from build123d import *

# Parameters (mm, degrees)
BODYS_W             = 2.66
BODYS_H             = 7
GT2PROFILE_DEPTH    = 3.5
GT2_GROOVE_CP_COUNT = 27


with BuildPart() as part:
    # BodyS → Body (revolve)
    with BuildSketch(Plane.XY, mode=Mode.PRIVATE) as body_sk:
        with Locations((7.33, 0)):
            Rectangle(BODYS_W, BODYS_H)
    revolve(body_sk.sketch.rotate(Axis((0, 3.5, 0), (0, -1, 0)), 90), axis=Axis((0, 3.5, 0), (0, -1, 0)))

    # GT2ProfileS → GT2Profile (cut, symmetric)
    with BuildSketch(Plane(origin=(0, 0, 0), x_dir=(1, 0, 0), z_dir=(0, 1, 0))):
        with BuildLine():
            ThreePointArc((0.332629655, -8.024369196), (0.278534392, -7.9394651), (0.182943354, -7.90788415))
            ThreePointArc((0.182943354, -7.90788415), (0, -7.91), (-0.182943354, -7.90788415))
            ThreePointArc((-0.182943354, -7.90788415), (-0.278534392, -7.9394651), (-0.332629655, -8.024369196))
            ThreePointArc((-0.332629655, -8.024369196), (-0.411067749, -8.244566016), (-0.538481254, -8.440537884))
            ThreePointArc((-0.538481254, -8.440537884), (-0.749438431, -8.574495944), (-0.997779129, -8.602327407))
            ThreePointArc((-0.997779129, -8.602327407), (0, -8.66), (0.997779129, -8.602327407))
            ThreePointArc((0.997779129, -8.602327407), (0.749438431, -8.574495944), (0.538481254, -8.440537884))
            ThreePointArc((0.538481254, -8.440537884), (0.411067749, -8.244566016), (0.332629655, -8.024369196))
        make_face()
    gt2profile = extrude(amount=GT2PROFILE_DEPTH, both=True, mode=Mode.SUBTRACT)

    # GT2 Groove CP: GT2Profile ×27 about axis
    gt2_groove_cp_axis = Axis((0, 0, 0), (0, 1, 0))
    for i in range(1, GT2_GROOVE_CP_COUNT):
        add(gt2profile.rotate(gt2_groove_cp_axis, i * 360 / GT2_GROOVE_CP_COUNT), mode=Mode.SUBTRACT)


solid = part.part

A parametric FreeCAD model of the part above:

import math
import FreeCAD as App
import Part
import Sketcher

V = App.Vector
Q = App.Units.Quantity

doc = App.newDocument("Part")
body = doc.addObject("PartDesign::Body", "Body")

sketch1 = doc.addObject("Sketcher::SketchObject", "Sketch")
body.addObject(sketch1)
sketch1.AttachmentSupport = (doc.XY_Plane, [""])
sketch1.MapMode = "FlatFace"
sketch1.addGeometry([
    Part.LineSegment(V(6, 3.5, 0), V(6, -3.5, 0)),
    Part.LineSegment(V(6, -3.5, 0), V(8.66, -3.5, 0)),
    Part.LineSegment(V(8.66, -3.5, 0), V(8.66, 3.5, 0)),
    Part.LineSegment(V(8.66, 3.5, 0), V(6, 3.5, 0)),
], False)
sketch1.addConstraint([
    Sketcher.Constraint("Coincident", 0, 2, 1, 1),
    Sketcher.Constraint("Coincident", 1, 2, 2, 1),
    Sketcher.Constraint("Coincident", 2, 2, 3, 1),
    Sketcher.Constraint("Coincident", 3, 2, 0, 1),
    Sketcher.Constraint("Vertical", 0),
    Sketcher.Constraint("Horizontal", 1),
    Sketcher.Constraint("Vertical", 2),
    Sketcher.Constraint("Horizontal", 3),
    Sketcher.Constraint("DistanceY", 0, 2, 0, 1, Q("7 mm")),
    Sketcher.Constraint("DistanceX", -1, 1, 0, 2, Q("6 mm")),
    Sketcher.Constraint("DistanceX", 1, 1, 1, 2, Q("2.66 mm")),
    Sketcher.Constraint("DistanceY", 0, 2, -1, 1, Q("3.5 mm")),
])
revolution = doc.addObject("PartDesign::Revolution", "Revolution")
body.addObject(revolution)
revolution.Profile = sketch1
revolution.ReferenceAxis = (sketch1, ["V_Axis"])
revolution.Angle = 360

sketch2 = doc.addObject("Sketcher::SketchObject", "Sketch001")
body.addObject(sketch2)
sketch2.AttachmentSupport = (doc.XZ_Plane, [""])
sketch2.MapMode = "FlatFace"
sketch2.addGeometry([
    Part.ArcOfCircle(Part.Circle(V(0.186413, 8.057844, 0), V(0, 0, 1), 0.15), math.radians(-91.325262), math.radians(-12.895028)),
    Part.ArcOfCircle(Part.Circle(V(0, 0, 0), V(0, 0, 1), 7.91), math.radians(88.674739), math.radians(91.325261)),
    Part.ArcOfCircle(Part.Circle(V(-0.186413, 8.057844, 0), V(0, 0, 1), 0.15), math.radians(-167.104972), math.radians(-88.674738)),
    Part.ArcOfCircle(Part.Circle(V(-1.30741, 7.801204, 0), V(0, 0, 1), 1), math.radians(12.895029), math.radians(39.742192)),
    Part.ArcOfCircle(Part.Circle(V(-0.933834, 8.051024, 0), V(0, 0, 1), 0.555), math.radians(44.573825), math.radians(96.616141)),
    Part.ArcOfCircle(Part.Circle(V(0, 0, 0), V(0, 0, 1), 8.66), math.radians(83.383859), math.radians(96.616141)),
    Part.ArcOfCircle(Part.Circle(V(0.933834, 8.051024, 0), V(0, 0, 1), 0.555), math.radians(83.383859), math.radians(135.426175)),
    Part.ArcOfCircle(Part.Circle(V(1.30741, 7.801204, 0), V(0, 0, 1), 1), math.radians(140.257808), math.radians(167.104971)),
], False)
sketch2.addConstraint([
    Sketcher.Constraint("Tangent", 0, 1, 1, 1),
    Sketcher.Constraint("Tangent", 1, 2, 2, 2),
    Sketcher.Constraint("Tangent", 2, 1, 3, 1),
    Sketcher.Constraint("Coincident", 3, 2, 4, 1),
    Sketcher.Constraint("Tangent", 4, 2, 5, 2),
    Sketcher.Constraint("Tangent", 5, 1, 6, 1),
    Sketcher.Constraint("Coincident", 6, 2, 7, 1),
    Sketcher.Constraint("Tangent", 7, 2, 0, 2),
    Sketcher.Constraint("Coincident", 1, 3, -1, 1),
    Sketcher.Constraint("Coincident", 5, 3, -1, 1),
    Sketcher.Constraint("Equal", 0, 2),
    Sketcher.Constraint("Equal", 4, 6),
    Sketcher.Constraint("Equal", 3, 7),
    Sketcher.Constraint("Symmetric", 3, 3, 7, 3, -2),
    Sketcher.Constraint("Horizontal", 4, 3, 6, 3),
    Sketcher.Constraint("Radius", 3, Q("1 mm")),
    Sketcher.Constraint("Radius", 0, Q("0.15 mm")),
    Sketcher.Constraint("Radius", 1, Q("7.91 mm")),
    Sketcher.Constraint("Radius", 5, Q("8.66 mm")),
    Sketcher.Constraint("Radius", 4, Q("0.555 mm")),
    Sketcher.Constraint("DistanceX", 3, 3, -1, 1, Q("1.30741 mm")),
    Sketcher.Constraint("DistanceX", 2, 1, -1, 1, Q("0.33263 mm")),
    Sketcher.Constraint("DistanceX", 3, 2, -1, 1, Q("0.538481 mm")),
])
pocket1 = doc.addObject("PartDesign::Pocket", "Pocket")
body.addObject(pocket1)
pocket1.Profile = sketch2
pocket1.Length = 7
pocket1.Midplane = True
doc.recompute()

polarpattern = doc.addObject("PartDesign::PolarPattern", "PolarPattern")
body.addObject(polarpattern)
polarpattern.Originals = [pocket1]
polarpattern.Axis = (doc.Y_Axis, [""])
polarpattern.Angle = 360
polarpattern.Occurrences = 27
body.Tip = polarpattern

doc.recompute()
